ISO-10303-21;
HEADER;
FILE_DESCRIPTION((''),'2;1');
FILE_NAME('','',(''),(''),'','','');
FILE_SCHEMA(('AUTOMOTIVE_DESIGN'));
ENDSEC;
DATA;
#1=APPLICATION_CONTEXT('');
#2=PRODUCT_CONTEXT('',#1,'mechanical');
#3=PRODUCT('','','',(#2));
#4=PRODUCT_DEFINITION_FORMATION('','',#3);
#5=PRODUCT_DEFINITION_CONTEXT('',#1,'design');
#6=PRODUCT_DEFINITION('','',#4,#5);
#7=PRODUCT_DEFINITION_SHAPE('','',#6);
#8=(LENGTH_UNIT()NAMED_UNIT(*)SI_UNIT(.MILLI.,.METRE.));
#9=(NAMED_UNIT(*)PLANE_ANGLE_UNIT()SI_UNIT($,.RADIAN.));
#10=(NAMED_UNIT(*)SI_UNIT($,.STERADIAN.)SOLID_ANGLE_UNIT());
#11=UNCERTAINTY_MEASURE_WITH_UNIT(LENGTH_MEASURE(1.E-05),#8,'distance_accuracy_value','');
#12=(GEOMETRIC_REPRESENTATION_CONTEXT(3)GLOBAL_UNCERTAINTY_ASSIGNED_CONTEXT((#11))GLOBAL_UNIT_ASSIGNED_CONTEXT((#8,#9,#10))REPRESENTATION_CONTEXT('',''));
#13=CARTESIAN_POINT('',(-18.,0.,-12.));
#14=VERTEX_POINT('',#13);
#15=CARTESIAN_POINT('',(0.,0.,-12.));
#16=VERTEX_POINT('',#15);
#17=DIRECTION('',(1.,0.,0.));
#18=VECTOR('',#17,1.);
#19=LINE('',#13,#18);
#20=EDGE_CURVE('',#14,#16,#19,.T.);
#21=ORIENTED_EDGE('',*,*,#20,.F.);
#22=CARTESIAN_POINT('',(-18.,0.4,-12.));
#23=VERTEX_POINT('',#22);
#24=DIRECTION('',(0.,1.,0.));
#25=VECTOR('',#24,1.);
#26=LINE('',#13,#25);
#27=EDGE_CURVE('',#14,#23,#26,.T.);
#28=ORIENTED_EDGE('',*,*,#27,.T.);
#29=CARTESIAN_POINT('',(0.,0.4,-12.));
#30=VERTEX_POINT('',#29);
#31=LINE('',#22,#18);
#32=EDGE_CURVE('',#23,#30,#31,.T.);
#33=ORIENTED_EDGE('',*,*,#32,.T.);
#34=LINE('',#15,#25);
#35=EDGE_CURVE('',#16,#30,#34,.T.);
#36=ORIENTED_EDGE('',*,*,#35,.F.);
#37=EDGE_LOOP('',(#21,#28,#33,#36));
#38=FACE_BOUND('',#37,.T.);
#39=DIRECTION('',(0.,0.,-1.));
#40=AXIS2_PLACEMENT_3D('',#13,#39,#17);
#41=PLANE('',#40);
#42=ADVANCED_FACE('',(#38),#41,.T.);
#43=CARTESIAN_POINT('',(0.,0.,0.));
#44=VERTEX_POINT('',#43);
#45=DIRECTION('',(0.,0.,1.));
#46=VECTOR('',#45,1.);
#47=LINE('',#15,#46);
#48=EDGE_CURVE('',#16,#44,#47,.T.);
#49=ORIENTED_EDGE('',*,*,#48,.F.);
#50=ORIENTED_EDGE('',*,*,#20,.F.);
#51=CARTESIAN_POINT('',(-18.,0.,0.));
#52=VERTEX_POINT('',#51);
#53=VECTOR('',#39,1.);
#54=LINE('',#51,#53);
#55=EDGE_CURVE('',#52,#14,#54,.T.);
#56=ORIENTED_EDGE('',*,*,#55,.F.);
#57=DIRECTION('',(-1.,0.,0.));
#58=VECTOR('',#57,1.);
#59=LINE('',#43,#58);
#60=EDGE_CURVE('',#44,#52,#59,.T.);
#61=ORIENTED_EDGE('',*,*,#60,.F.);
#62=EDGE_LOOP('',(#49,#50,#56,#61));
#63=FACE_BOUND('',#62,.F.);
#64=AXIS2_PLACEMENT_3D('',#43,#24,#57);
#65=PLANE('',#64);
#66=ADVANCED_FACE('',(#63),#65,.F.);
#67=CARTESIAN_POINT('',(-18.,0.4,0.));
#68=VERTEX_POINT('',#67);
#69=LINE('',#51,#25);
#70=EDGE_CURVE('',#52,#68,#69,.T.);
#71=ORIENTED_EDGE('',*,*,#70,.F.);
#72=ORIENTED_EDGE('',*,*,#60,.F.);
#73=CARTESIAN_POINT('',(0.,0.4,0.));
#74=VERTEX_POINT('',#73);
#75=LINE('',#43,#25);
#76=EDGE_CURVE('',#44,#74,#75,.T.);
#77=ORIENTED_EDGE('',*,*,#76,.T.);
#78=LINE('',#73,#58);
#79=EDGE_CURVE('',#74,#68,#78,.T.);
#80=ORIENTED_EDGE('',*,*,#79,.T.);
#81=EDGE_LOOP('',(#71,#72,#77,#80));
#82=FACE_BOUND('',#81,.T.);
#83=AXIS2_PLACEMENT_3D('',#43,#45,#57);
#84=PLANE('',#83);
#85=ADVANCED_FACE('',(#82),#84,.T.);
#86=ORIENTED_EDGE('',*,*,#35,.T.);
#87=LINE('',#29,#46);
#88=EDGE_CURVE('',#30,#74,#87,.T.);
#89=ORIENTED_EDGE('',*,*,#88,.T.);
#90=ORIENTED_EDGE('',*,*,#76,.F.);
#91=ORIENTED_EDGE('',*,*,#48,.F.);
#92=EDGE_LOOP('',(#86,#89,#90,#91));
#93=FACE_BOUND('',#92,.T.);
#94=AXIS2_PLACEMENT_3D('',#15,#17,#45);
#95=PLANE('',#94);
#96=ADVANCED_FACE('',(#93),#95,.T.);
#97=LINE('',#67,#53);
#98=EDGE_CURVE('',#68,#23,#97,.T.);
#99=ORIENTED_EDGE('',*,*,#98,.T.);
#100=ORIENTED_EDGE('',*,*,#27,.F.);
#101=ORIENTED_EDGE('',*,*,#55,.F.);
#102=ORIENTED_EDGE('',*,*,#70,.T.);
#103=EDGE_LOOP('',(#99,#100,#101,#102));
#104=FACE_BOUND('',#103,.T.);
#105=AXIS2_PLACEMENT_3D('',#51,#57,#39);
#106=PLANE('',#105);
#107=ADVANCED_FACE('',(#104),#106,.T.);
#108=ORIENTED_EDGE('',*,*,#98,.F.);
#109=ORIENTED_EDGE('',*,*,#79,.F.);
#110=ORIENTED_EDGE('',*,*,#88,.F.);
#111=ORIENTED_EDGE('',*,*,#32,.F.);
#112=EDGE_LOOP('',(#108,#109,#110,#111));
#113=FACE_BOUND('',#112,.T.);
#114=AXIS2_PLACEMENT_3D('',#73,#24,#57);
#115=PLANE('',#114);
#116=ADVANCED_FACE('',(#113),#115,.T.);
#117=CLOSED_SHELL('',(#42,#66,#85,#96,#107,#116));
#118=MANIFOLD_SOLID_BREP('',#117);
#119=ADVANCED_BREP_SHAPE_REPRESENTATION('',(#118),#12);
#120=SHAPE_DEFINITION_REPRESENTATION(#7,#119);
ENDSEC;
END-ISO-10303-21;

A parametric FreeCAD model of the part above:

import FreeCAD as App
import Part
import Sketcher
from FreeCAD import Vector


def add_polygon(sketch, points):
    """Adds a closed chain of lines whose ends are joined by coincident constraints."""
    first, n = sketch.GeometryCount, len(points)
    for a, b in zip(points, points[1:] + points[:1]):
        sketch.addGeometry(Part.LineSegment(App.Vector(*a, 0), App.Vector(*b, 0)), False)
    for i in range(n):
        sketch.addConstraint(Sketcher.Constraint("Coincident", first + i, 2, first + (i + 1) % n, 1))

doc = App.newDocument("Part")
body = doc.addObject("PartDesign::Body", "Body")

# Sketch on XZ plane
sketch1 = body.newObject("Sketcher::SketchObject", "Sketch")
sketch1.AttachmentSupport = (doc.getObject("XZ_Plane"), [""])
sketch1.MapMode = "FlatFace"
add_polygon(sketch1, [(-18, 0), (0, 0), (0, -12), (-18, -12)])  # lines 0-3
sketch1.addConstraint([
    Sketcher.Constraint("Horizontal", 0),
    Sketcher.Constraint("Vertical", 1),
    Sketcher.Constraint("Horizontal", 2),
    Sketcher.Constraint("Vertical", 3),
    Sketcher.Constraint("Coincident", 0, 2, -1, 1),
    Sketcher.Constraint("DistanceX", 0, 1, 0, 2, 18.0),
    Sketcher.Constraint("DistanceY", 1, 2, 1, 1, 12.0),
])
pad1 = body.newObject("PartDesign::Pad", "Pad")
pad1.Profile = sketch1
pad1.Length = 0.4
pad1.Reversed = True

doc.recompute()
